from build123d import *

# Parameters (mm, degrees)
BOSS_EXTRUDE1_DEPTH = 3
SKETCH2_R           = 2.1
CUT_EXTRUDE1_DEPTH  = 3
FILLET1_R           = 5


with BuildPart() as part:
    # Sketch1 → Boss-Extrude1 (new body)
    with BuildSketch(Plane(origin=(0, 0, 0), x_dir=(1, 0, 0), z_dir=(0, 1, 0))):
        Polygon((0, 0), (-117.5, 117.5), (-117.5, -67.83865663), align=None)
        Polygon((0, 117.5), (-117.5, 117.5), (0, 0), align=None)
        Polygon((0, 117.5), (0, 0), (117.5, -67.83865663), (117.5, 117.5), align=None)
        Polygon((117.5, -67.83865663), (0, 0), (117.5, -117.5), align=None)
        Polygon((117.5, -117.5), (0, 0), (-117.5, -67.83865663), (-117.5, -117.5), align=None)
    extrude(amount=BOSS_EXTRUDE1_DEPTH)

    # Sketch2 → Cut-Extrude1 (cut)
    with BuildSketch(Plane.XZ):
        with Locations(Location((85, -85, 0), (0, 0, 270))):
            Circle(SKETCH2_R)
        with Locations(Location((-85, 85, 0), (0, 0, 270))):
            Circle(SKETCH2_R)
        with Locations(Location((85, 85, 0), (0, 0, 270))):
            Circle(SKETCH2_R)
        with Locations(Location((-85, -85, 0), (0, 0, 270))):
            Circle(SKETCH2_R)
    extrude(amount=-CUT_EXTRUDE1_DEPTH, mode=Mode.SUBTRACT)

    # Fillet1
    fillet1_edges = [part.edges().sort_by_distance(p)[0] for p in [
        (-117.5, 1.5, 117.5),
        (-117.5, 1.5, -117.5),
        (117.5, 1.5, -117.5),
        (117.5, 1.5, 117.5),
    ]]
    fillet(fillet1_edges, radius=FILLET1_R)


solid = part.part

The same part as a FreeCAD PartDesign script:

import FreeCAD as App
import Part
import Sketcher

V = App.Vector


def edges_at(feature, points):
    """Names of the edges that pass closest to the given points."""
    edges = feature.Shape.Edges
    near = lambda p: min(range(len(edges)), key=lambda i: edges[i].distToShape(Part.Vertex(*p))[0])
    return sorted({f"Edge{near(p) + 1}" for p in points})

doc = App.newDocument("Part")
body = doc.addObject("PartDesign::Body", "Body")

sketch1 = body.newObject("Sketcher::SketchObject", "Sketch")
sketch1.AttachmentSupport = (doc.getObject("XZ_Plane"), [""])
sketch1.MapMode = "FlatFace"
sketch1.addGeometry([
    Part.LineSegment(V(-117.5, -117.5, 0), V(-117.5, 117.5, 0)),
    Part.LineSegment(V(-117.5, 117.5, 0), V(117.5, 117.5, 0)),
    Part.LineSegment(V(117.5, 117.5, 0), V(117.5, -117.5, 0)),
    Part.LineSegment(V(117.5, -117.5, 0), V(-117.5, -117.5, 0)),
], False)
sketch1.addConstraint([
    Sketcher.Constraint("Coincident", 0, 2, 1, 1),
    Sketcher.Constraint("Coincident", 1, 2, 2, 1),
    Sketcher.Constraint("Coincident", 2, 2, 3, 1),
    Sketcher.Constraint("Coincident", 3, 2, 0, 1),
    Sketcher.Constraint("Vertical", 0),
    Sketcher.Constraint("Horizontal", 1),
    Sketcher.Constraint("Vertical", 2),
    Sketcher.Constraint("Horizontal", 3),
    Sketcher.Constraint("Symmetric", 0, 2, 2, 2, -1, 1),
    Sketcher.Constraint("Equal", 3, 0),
    Sketcher.Constraint("DistanceX", 1, 1, 1, 2, 235.0),
])
pad1 = body.newObject("PartDesign::Pad", "Pad")
pad1.Profile = sketch1
pad1.Length = 3
pad1.Reversed = True

sketch2 = body.newObject("Sketcher::SketchObject", "Sketch001")
sketch2.AttachmentSupport = (doc.getObject("XZ_Plane"), [""])
sketch2.MapMode = "FlatFace"
sketch2.addGeometry([
    Part.Circle(V(85, -85, 0), V(0, 0, 1), 2.1),
    Part.Circle(V(-85, 85, 0), V(0, 0, 1), 2.1),
    Part.Circle(V(85, 85, 0), V(0, 0, 1), 2.1),
    Part.Circle(V(-85, -85, 0), V(0, 0, 1), 2.1),
], False)
sketch2.addConstraint([
    Sketcher.Constraint("Equal", 0, 1),
    Sketcher.Constraint("Equal", 1, 2),
    Sketcher.Constraint("Equal", 2, 3),
    Sketcher.Constraint("Symmetric", 0, 3, 1, 3, -1, 1),
    Sketcher.Constraint("Symmetric", 2, 3, 3, 3, -1, 1),
    Sketcher.Constraint("Symmetric", 1, 3, 2, 3, -2),
    Sketcher.Constraint("Diameter", 0, 4.2),
    Sketcher.Constraint("DistanceX", -1, 1, 0, 3, 85.0),
    Sketcher.Constraint("DistanceY", 0, 3, -1, 1, 85.0),
])
pocket1 = body.newObject("PartDesign::Pocket", "Pocket")
pocket1.Profile = sketch2
pocket1.Length = 3
doc.recompute()

fillet = body.newObject("PartDesign::Fillet", "Fillet")
fillet.Base = (pocket1, edges_at(pocket1, [
    (-117.5, 1.5, 117.5),
    (-117.5, 1.5, -117.5),
    (117.5, 1.5, -117.5),
    (117.5, 1.5, 117.5),
]))
fillet.Radius = 5

doc.recompute()
